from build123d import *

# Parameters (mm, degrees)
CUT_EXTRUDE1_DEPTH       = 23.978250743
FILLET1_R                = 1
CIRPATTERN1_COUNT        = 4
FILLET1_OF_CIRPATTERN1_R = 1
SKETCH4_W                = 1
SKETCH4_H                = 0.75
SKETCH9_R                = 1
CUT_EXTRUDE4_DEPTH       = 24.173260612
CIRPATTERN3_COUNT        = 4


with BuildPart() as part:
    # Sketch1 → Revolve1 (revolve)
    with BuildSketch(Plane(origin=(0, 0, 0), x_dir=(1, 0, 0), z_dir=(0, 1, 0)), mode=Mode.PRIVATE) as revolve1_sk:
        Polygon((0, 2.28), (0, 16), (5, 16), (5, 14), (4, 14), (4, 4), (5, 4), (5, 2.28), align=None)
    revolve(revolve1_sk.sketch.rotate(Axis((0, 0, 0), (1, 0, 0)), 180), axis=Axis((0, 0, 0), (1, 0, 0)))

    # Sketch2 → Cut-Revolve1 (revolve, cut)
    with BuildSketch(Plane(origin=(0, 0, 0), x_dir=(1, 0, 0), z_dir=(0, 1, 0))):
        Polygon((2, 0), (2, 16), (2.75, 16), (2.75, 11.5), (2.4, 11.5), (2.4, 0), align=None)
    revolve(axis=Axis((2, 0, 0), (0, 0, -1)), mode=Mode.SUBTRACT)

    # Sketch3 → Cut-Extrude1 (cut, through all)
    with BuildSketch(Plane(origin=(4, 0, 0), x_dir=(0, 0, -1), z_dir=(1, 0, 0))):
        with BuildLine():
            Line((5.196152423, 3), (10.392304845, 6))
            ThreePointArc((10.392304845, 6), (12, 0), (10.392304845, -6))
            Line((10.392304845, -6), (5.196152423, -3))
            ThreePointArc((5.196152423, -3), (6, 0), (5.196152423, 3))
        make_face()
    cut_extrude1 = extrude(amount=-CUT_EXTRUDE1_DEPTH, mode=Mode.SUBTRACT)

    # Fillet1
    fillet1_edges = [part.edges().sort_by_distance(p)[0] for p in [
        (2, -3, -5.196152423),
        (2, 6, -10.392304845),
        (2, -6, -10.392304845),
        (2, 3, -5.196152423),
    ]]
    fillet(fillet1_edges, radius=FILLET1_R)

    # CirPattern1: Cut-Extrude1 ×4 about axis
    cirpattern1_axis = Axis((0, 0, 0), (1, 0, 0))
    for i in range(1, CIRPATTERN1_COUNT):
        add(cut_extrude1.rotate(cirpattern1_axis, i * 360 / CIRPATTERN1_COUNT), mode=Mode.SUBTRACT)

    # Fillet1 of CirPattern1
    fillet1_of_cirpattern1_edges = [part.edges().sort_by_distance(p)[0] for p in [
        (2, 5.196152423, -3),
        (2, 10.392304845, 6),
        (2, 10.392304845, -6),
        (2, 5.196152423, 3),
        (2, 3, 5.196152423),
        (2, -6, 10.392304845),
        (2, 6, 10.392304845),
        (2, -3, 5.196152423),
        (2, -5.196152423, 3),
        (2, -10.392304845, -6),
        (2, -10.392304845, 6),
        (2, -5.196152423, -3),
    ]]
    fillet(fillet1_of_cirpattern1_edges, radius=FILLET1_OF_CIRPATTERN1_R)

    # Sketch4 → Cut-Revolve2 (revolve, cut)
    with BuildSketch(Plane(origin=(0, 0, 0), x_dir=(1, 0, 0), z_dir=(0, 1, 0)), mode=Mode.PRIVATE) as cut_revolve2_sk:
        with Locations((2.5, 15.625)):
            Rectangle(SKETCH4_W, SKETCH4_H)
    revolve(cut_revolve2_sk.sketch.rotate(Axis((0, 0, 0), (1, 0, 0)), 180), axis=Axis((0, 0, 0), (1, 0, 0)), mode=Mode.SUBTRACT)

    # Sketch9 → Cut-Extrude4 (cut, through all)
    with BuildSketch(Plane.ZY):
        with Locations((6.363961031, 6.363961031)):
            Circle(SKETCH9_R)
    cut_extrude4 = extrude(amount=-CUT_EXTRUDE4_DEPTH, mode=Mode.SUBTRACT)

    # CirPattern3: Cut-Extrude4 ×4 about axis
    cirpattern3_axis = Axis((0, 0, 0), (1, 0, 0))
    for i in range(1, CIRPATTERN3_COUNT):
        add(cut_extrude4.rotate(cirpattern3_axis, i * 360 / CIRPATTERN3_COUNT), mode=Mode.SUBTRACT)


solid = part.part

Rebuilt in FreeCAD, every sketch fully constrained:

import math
import FreeCAD as App
import Part
import Sketcher
Q = App.Units.Quantity


def edges_at(feature, points):
    """Names of the edges that pass closest to the given points."""
    edges = feature.Shape.Edges
    near = lambda p: min(range(len(edges)), key=lambda i: edges[i].distToShape(Part.Vertex(*p))[0])
    return sorted({f"Edge{near(p) + 1}" for p in points})

doc = App.newDocument("Part")
body = doc.addObject("PartDesign::Body", "Body")

# Sketch on XZ plane
sketch1 = doc.addObject("Sketcher::SketchObject", "Sketch")
body.addObject(sketch1)
sketch1.AttachmentSupport = (doc.XZ_Plane, [""])
sketch1.MapMode = "FlatFace"
sketch1.addGeometry(Part.LineSegment(App.Vector(0, -16, 0), App.Vector(0, -2.3, 0)), False)
sketch1.addGeometry(Part.LineSegment(App.Vector(0, -2.3, 0), App.Vector(5, -2.3, 0)), False)
sketch1.addGeometry(Part.LineSegment(App.Vector(5, -2.3, 0), App.Vector(5, -4, 0)), False)
sketch1.addGeometry(Part.LineSegment(App.Vector(5, -4, 0), App.Vector(4, -4, 0)), False)
sketch1.addGeometry(Part.LineSegment(App.Vector(4, -4, 0), App.Vector(4, -14, 0)), False)
sketch1.addGeometry(Part.LineSegment(App.Vector(4, -14, 0), App.Vector(5, -14, 0)), False)
sketch1.addGeometry(Part.LineSegment(App.Vector(5, -14, 0), App.Vector(5, -16, 0)), False)
sketch1.addGeometry(Part.LineSegment(App.Vector(5, -16, 0), App.Vector(0, -16, 0)), False)
sketch1.addConstraint(Sketcher.Constraint("Coincident", 0, 2, 1, 1))
sketch1.addConstraint(Sketcher.Constraint("Coincident", 1, 2, 2, 1))
sketch1.addConstraint(Sketcher.Constraint("Coincident", 2, 2, 3, 1))
sketch1.addConstraint(Sketcher.Constraint("Coincident", 3, 2, 4, 1))
sketch1.addConstraint(Sketcher.Constraint("Coincident", 4, 2, 5, 1))
sketch1.addConstraint(Sketcher.Constraint("Coincident", 5, 2, 6, 1))
sketch1.addConstraint(Sketcher.Constraint("Coincident", 6, 2, 7, 1))
sketch1.addConstraint(Sketcher.Constraint("Coincident", 7, 2, 0, 1))
sketch1.addConstraint(Sketcher.Constraint("Vertical", 0))
sketch1.addConstraint(Sketcher.Constraint("Horizontal", 1))
sketch1.addConstraint(Sketcher.Constraint("Vertical", 2))
sketch1.addConstraint(Sketcher.Constraint("Horizontal", 3))
sketch1.addConstraint(Sketcher.Constraint("Vertical", 4))
sketch1.addConstraint(Sketcher.Constraint("Horizontal", 5))
sketch1.addConstraint(Sketcher.Constraint("Vertical", 6))
sketch1.addConstraint(Sketcher.Constraint("Horizontal", 7))
sketch1.addConstraint(Sketcher.Constraint("PointOnObject", 0, 2, -2))
sketch1.addConstraint(Sketcher.Constraint("Vertical", 2, 2, 5, 2))
sketch1.addConstraint(Sketcher.Constraint("DistanceX", 1, 1, 1, 2, 5.0))
sketch1.addConstraint(Sketcher.Constraint("DistanceX", 3, 2, 3, 1, 1.0))
sketch1.addConstraint(Sketcher.Constraint("DistanceY", 4, 2, 4, 1, 10.0))
sketch1.addConstraint(Sketcher.Constraint("DistanceY", 6, 2, 6, 1, 2.0))
sketch1.addConstraint(Sketcher.Constraint("DistanceY", 2, 2, -1, 1, 4.0))
sketch1.addConstraint(Sketcher.Constraint("DistanceY", 0, 1, 0, 2, 13.72))
revolution = doc.addObject("PartDesign::Revolution", "Revolution")
body.addObject(revolution)
revolution.Profile = sketch1
revolution.ReferenceAxis = (sketch1, ["H_Axis"])
revolution.Angle = 360

# Sketch on XZ plane
sketch2 = doc.addObject("Sketcher::SketchObject", "Sketch001")
body.addObject(sketch2)
sketch2.AttachmentSupport = (doc.XZ_Plane, [""])
sketch2.MapMode = "FlatFace"
sketch2.addGeometry(Part.LineSegment(App.Vector(2, -16, 0), App.Vector(2, 0, 0)), False)
sketch2.addGeometry(Part.LineSegment(App.Vector(2, 0, 0), App.Vector(2.4, 0, 0)), False)
sketch2.addGeometry(Part.LineSegment(App.Vector(2.4, 0, 0), App.Vector(2.4, -11.5, 0)), False)
sketch2.addGeometry(Part.LineSegment(App.Vector(2.4, -11.5, 0), App.Vector(2.75, -11.5, 0)), False)
sketch2.addGeometry(Part.LineSegment(App.Vector(2.75, -11.5, 0), App.Vector(2.75, -16, 0)), False)
sketch2.addGeometry(Part.LineSegment(App.Vector(2.75, -16, 0), App.Vector(2, -16, 0)), False)
sketch2.addGeometry(Part.LineSegment(App.Vector(2, 0, 0), App.Vector(2, -16, 0)), True)  # axis
sketch2.addConstraint(Sketcher.Constraint("Coincident", 0, 2, 1, 1))
sketch2.addConstraint(Sketcher.Constraint("Coincident", 1, 2, 2, 1))
sketch2.addConstraint(Sketcher.Constraint("Coincident", 2, 2, 3, 1))
sketch2.addConstraint(Sketcher.Constraint("Coincident", 3, 2, 4, 1))
sketch2.addConstraint(Sketcher.Constraint("Coincident", 4, 2, 5, 1))
sketch2.addConstraint(Sketcher.Constraint("Coincident", 5, 2, 0, 1))
sketch2.addConstraint(Sketcher.Constraint("Vertical", 0))
sketch2.addConstraint(Sketcher.Constraint("Horizontal", 1))
sketch2.addConstraint(Sketcher.Constraint("Vertical", 2))
sketch2.addConstraint(Sketcher.Constraint("Horizontal", 3))
sketch2.addConstraint(Sketcher.Constraint("Vertical", 4))
sketch2.addConstraint(Sketcher.Constraint("Horizontal", 5))
sketch2.addConstraint(Sketcher.Constraint("Vertical", 6))
sketch2.addConstraint(Sketcher.Constraint("Coincident", 6, 1, 0, 2))
sketch2.addConstraint(Sketcher.Constraint("PointOnObject", 0, 2, -1))
sketch2.addConstraint(Sketcher.Constraint("Horizontal", 4, 2, 6, 2))
sketch2.addConstraint(Sketcher.Constraint("DistanceY", 0, 1, 0, 2, 16.0))
sketch2.addConstraint(Sketcher.Constraint("DistanceX", 1, 1, 1, 2, 0.4))
sketch2.addConstraint(Sketcher.Constraint("DistanceY", 2, 2, 2, 1, 11.5))
sketch2.addConstraint(Sketcher.Constraint("DistanceX", -1, 1, 0, 2, 2.0))
sketch2.addConstraint(Sketcher.Constraint("DistanceX", 3, 1, 3, 2, 0.35))
groove = doc.addObject("PartDesign::Groove", "Groove")
body.addObject(groove)
groove.Profile = sketch2
groove.ReferenceAxis = (sketch2, ["Axis0"])
groove.Angle = 360

# Sketch on YZ plane
sketch3 = doc.addObject("Sketcher::SketchObject", "Sketch002")
body.addObject(sketch3)
sketch3.AttachmentSupport = (doc.YZ_Plane, [""])
sketch3.MapMode = "FlatFace"
sketch3.AttachmentOffset = App.Placement(App.Vector(0, 0, 4), App.Rotation())
sketch3.addGeometry(Part.LineSegment(App.Vector(6, -10, 0), App.Vector(3, -5, 0)), False)
sketch3.addGeometry(Part.ArcOfCircle(Part.Circle(App.Vector(0, 0, 0), App.Vector(0, 0, 1), 6), math.radians(-120), math.radians(-60)), False)
sketch3.addGeometry(Part.LineSegment(App.Vector(-3, -5, 0), App.Vector(-6, -10, 0)), False)
sketch3.addGeometry(Part.ArcOfCircle(Part.Circle(App.Vector(0, 0, 0), App.Vector(0, 0, 1), 12), math.radians(-120), math.radians(-60)), False)
sketch3.addConstraint(Sketcher.Constraint("Coincident", 0, 2, 1, 2))
sketch3.addConstraint(Sketcher.Constraint("Coincident", 1, 1, 2, 1))
sketch3.addConstraint(Sketcher.Constraint("Coincident", 2, 2, 3, 1))
sketch3.addConstraint(Sketcher.Constraint("Coincident", 3, 2, 0, 1))
sketch3.addConstraint(Sketcher.Constraint("Coincident", 1, 3, -1, 1))
sketch3.addConstraint(Sketcher.Constraint("Coincident", 3, 3, -1, 1))
sketch3.addConstraint(Sketcher.Constraint("Horizontal", 0, 2, 1, 1))
sketch3.addConstraint(Sketcher.Constraint("Horizontal", 2, 2, 3, 2))
sketch3.addConstraint(Sketcher.Constraint("Radius", 1, 6.0))
sketch3.addConstraint(Sketcher.Constraint("Radius", 3, 12.0))
sketch3.addConstraint(Sketcher.Constraint("Angle", 0, Q("120 deg")))
sketch3.addConstraint(Sketcher.Constraint("DistanceX", -1, 1, 0, 2, 3.0))
pocket1 = doc.addObject("PartDesign::Pocket", "Pocket")
body.addObject(pocket1)
pocket1.Profile = sketch3
pocket1.Type = "ThroughAll"
doc.recompute()

fillet = doc.addObject("PartDesign::Fillet", "Fillet")
body.addObject(fillet)
fillet.Base = (pocket1, edges_at(pocket1, [
    (2, -3, -5.196),
    (2, 6, -10.392),
    (2, -6, -10.392),
    (2, 3, -5.196),
]))
fillet.Radius = 1
doc.recompute()

polarpattern = doc.addObject("PartDesign::PolarPattern", "PolarPattern")
body.addObject(polarpattern)
polarpattern.Originals = [pocket1]
polarpattern.Axis = (doc.X_Axis, [""])
polarpattern.Angle = 360
polarpattern.Occurrences = 4
body.Tip = polarpattern
doc.recompute()

fillet2 = doc.addObject("PartDesign::Fillet", "Fillet001")
body.addObject(fillet2)
fillet2.Base = (polarpattern, edges_at(polarpattern, [
    (2, 5.196, -3),
    (2, 10.392, 6),
    (2, 10.392, -6),
    (2, 5.196, 3),
    (2, 3, 5.196),
    (2, -6, 10.392),
    (2, 6, 10.392),
    (2, -3, 5.196),
    (2, -5.196, 3),
    (2, -10.392, -6),
    (2, -10.392, 6),
    (2, -5.196, -3),
]))
fillet2.Radius = 1

# Sketch on XZ plane
sketch4 = doc.addObject("Sketcher::SketchObject", "Sketch003")
body.addObject(sketch4)
sketch4.AttachmentSupport = (doc.XZ_Plane, [""])
sketch4.MapMode = "FlatFace"
sketch4.addGeometry(Part.LineSegment(App.Vector(2, -16, 0), App.Vector(2, -15.2, 0)), False)
sketch4.addGeometry(Part.LineSegment(App.Vector(2, -15.2, 0), App.Vector(3, -15.2, 0)), False)
sketch4.addGeometry(Part.LineSegment(App.Vector(3, -15.2, 0), App.Vector(3, -16, 0)), False)
sketch4.addGeometry(Part.LineSegment(App.Vector(3, -16, 0), App.Vector(2, -16, 0)), False)
sketch4.addConstraint(Sketcher.Constraint("Coincident", 0, 2, 1, 1))
sketch4.addConstraint(Sketcher.Constraint("Coincident", 1, 2, 2, 1))
sketch4.addConstraint(Sketcher.Constraint("Coincident", 2, 2, 3, 1))
sketch4.addConstraint(Sketcher.Constraint("Coincident", 3, 2, 0, 1))
sketch4.addConstraint(Sketcher.Constraint("Vertical", 0))
sketch4.addConstraint(Sketcher.Constraint("Horizontal", 1))
sketch4.addConstraint(Sketcher.Constraint("Vertical", 2))
sketch4.addConstraint(Sketcher.Constraint("Horizontal", 3))
sketch4.addConstraint(Sketcher.Constraint("DistanceX", 1, 1, 1, 2, 1.0))
sketch4.addConstraint(Sketcher.Constraint("DistanceX", -1, 1, 0, 2, 2.0))
sketch4.addConstraint(Sketcher.Constraint("DistanceY", 2, 2, -1, 1, 16.0))
sketch4.addConstraint(Sketcher.Constraint("DistanceY", 0, 1, 0, 2, 0.75))
groove2 = doc.addObject("PartDesign::Groove", "Groove001")
body.addObject(groove2)
groove2.Profile = sketch4
groove2.ReferenceAxis = (sketch4, ["H_Axis"])
groove2.Angle = 360

# Sketch on YZ plane
sketch5 = doc.addObject("Sketcher::SketchObject", "Sketch004")
body.addObject(sketch5)
sketch5.AttachmentSupport = (doc.YZ_Plane, [""])
sketch5.MapMode = "FlatFace"
sketch5.addGeometry(Part.Circle(App.Vector(6.4, 6.4, 0), App.Vector(0, 0, 1), 1), False)
sketch5.addConstraint(Sketcher.Constraint("Diameter", 0, 2.0))
sketch5.addConstraint(Sketcher.Constraint("DistanceX", -1, 1, 0, 3, 6.363961))
sketch5.addConstraint(Sketcher.Constraint("DistanceY", -1, 1, 0, 3, 6.363961))
pocket2 = doc.addObject("PartDesign::Pocket", "Pocket001")
body.addObject(pocket2)
pocket2.Profile = sketch5
pocket2.Type = "ThroughAll"
pocket2.Reversed = True
doc.recompute()

polarpattern2 = doc.addObject("PartDesign::PolarPattern", "PolarPattern001")
body.addObject(polarpattern2)
polarpattern2.Originals = [pocket2]
polarpattern2.Axis = (doc.X_Axis, [""])
polarpattern2.Angle = 360
polarpattern2.Occurrences = 4
body.Tip = polarpattern2

doc.recompute()
